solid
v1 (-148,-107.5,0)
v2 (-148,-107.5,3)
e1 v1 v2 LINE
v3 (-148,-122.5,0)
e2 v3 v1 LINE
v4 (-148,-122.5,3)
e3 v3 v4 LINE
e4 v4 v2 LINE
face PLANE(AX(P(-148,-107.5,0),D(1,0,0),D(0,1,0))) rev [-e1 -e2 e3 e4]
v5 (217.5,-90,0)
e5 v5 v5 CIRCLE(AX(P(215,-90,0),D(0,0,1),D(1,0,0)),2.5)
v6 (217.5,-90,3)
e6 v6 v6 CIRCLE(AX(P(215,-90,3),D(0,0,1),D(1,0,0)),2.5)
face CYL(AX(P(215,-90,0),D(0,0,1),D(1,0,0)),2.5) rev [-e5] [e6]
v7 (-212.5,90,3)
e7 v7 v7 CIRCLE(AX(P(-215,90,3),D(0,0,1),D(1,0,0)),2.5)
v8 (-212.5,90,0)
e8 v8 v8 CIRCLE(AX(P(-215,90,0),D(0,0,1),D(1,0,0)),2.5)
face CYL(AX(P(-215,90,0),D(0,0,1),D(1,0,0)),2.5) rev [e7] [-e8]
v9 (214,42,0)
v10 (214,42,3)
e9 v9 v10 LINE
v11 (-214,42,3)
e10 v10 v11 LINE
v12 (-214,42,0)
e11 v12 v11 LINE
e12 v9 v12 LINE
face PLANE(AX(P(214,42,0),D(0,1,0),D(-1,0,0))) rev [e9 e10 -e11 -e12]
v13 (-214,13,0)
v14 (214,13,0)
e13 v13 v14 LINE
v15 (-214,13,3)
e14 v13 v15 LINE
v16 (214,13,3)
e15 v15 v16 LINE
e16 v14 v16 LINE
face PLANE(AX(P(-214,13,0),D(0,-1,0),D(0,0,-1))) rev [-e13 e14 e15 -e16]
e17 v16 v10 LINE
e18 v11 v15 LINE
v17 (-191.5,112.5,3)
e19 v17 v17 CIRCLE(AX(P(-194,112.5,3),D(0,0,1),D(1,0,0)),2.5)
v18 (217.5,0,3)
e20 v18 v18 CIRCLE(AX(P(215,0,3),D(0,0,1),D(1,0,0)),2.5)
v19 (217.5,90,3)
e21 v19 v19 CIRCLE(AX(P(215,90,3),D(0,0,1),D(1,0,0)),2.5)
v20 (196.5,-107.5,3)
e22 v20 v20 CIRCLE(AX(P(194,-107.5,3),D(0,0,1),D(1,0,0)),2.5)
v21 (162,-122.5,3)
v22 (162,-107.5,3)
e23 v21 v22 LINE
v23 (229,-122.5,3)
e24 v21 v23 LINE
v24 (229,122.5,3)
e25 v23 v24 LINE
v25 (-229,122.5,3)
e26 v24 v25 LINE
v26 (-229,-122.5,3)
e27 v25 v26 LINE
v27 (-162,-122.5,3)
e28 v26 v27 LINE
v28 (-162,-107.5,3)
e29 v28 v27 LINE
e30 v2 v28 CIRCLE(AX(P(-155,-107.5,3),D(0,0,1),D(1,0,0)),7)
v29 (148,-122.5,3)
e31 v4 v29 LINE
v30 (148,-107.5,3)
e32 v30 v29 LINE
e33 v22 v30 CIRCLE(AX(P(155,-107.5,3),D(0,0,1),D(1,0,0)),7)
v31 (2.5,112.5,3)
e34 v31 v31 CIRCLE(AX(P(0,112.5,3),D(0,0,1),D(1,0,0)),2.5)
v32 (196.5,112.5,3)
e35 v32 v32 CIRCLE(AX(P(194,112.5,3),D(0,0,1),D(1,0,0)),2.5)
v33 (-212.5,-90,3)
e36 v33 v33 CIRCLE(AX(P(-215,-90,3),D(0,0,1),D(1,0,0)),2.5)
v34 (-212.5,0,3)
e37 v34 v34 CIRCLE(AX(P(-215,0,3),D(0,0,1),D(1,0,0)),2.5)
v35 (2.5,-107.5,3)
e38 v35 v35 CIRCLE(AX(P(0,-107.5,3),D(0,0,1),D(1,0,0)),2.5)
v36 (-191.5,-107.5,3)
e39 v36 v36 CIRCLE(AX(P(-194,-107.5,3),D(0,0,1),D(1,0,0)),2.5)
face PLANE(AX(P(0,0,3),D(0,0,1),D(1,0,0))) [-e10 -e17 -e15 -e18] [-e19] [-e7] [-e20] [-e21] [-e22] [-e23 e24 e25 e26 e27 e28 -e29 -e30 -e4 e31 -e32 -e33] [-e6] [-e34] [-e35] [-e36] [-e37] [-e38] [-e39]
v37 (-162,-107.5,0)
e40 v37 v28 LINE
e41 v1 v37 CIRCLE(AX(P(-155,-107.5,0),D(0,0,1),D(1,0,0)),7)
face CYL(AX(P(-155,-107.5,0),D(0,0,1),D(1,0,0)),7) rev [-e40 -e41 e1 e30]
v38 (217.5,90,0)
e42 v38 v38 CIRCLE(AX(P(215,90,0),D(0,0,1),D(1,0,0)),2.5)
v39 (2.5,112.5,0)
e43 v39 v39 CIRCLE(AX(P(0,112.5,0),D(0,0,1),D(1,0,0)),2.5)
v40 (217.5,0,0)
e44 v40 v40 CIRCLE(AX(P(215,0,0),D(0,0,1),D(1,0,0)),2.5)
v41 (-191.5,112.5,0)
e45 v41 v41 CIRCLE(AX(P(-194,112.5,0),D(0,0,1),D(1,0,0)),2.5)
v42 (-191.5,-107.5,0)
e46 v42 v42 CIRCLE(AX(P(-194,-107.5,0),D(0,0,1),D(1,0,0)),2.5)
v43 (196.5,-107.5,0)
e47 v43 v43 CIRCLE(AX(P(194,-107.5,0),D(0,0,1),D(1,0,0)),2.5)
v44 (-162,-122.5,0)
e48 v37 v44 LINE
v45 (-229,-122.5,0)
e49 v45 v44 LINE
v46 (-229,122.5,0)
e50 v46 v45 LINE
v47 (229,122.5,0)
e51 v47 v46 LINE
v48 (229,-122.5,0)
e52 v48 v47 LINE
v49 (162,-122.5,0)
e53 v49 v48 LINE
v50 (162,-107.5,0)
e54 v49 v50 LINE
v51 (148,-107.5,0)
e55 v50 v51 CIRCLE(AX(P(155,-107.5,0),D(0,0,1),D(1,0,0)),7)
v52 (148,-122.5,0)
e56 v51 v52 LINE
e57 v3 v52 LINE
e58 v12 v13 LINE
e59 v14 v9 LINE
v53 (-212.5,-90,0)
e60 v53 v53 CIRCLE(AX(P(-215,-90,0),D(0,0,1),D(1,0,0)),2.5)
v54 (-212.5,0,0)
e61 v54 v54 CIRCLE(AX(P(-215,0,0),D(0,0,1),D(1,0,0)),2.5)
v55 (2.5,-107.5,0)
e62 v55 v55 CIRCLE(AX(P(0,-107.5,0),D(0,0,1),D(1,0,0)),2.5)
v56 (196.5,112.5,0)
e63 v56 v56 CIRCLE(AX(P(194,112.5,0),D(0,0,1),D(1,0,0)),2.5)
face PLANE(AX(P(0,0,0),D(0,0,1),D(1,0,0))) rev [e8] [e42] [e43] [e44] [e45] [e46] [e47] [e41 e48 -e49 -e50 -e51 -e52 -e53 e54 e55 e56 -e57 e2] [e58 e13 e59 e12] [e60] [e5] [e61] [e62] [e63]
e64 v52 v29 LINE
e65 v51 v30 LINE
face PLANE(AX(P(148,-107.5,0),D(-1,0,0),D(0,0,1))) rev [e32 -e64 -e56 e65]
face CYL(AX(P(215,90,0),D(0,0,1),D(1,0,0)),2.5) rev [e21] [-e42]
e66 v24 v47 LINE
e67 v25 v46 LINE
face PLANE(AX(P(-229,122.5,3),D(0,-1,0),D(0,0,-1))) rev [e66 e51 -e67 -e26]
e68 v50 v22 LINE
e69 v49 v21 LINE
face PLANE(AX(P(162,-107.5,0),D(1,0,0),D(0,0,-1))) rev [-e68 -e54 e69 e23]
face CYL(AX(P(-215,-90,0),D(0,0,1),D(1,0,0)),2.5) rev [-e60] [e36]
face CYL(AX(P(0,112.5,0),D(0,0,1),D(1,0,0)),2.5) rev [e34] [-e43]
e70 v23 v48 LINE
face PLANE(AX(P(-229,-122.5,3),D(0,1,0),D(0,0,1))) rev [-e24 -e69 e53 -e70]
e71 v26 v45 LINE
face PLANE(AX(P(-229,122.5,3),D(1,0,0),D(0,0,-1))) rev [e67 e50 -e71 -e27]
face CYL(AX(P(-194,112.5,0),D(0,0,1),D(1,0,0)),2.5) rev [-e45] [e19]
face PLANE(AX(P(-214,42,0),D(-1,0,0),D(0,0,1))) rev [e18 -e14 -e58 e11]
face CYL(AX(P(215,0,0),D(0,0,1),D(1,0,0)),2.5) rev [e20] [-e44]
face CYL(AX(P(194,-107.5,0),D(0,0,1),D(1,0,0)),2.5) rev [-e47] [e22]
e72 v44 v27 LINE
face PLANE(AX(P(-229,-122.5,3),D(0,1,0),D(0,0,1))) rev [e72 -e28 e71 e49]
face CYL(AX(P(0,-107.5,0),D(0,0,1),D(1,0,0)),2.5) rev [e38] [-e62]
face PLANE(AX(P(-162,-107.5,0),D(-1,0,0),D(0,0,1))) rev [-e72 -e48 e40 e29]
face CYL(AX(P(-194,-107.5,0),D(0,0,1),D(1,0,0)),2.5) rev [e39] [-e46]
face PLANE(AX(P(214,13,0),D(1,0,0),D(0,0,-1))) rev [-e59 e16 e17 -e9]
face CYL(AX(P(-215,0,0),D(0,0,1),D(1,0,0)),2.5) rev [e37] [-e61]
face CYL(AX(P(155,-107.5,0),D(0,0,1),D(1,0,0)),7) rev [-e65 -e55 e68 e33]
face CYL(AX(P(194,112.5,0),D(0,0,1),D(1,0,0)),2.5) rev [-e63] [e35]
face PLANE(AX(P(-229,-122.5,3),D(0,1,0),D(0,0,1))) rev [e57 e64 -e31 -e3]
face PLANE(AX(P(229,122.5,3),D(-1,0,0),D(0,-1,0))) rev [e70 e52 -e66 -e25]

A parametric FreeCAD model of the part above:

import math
import FreeCAD as App
import Part
import Sketcher


def add_polygon(sketch, points):
    """Adds a closed chain of lines whose ends are joined by coincident constraints."""
    first, n = sketch.GeometryCount, len(points)
    for a, b in zip(points, points[1:] + points[:1]):
        sketch.addGeometry(Part.LineSegment(App.Vector(*a, 0), App.Vector(*b, 0)), False)
    for i in range(n):
        sketch.addConstraint(Sketcher.Constraint("Coincident", first + i, 2, first + (i + 1) % n, 1))

doc = App.newDocument("Part")
body = doc.addObject("PartDesign::Body", "Body")

# Sketch on XY plane
sketch1 = body.newObject("Sketcher::SketchObject", "Sketch")
sketch1.AttachmentSupport = (doc.getObject("XY_Plane"), [""])
sketch1.MapMode = "FlatFace"
add_polygon(sketch1, [(-229, 122), (-229, -122), (229, -122), (229, 122)])  # lines 0-3
sketch1.addConstraint([
    Sketcher.Constraint("Vertical", 0),
    Sketcher.Constraint("Horizontal", 1),
    Sketcher.Constraint("Vertical", 2),
    Sketcher.Constraint("Horizontal", 3),
    Sketcher.Constraint("Symmetric", 0, 2, 2, 2, -1, 1),
    Sketcher.Constraint("DistanceX", 1, 1, 1, 2, 458.0),
    Sketcher.Constraint("DistanceY", 0, 2, 0, 1, 245.0),
])
pad1 = body.newObject("PartDesign::Pad", "Pad")
pad1.Profile = sketch1
pad1.Length = 3

# Sketch on XY plane
sketch2 = body.newObject("Sketcher::SketchObject", "Sketch001")
sketch2.AttachmentSupport = (doc.getObject("XY_Plane"), [""])
sketch2.MapMode = "FlatFace"
sketch2.AttachmentOffset = App.Placement(App.Vector(0, 0, 3), App.Rotation())
sketch2.addGeometry([
    Part.LineSegment(App.Vector(-148, -122, 0), App.Vector(-148, -108, 0)),  # 0
    Part.ArcOfCircle(Part.Circle(App.Vector(-155, -108, 0), App.Vector(0, 0, 1), 7), math.radians(0), math.radians(180)),  # 1
    Part.LineSegment(App.Vector(-162, -108, 0), App.Vector(-162, -122, 0)),  # 2
    Part.ArcOfCircle(Part.Circle(App.Vector(-155, -122, 0), App.Vector(0, 0, 1), 7), math.radians(180), math.radians(360)),  # 3
    Part.LineSegment(App.Vector(162, -122, 0), App.Vector(162, -108, 0)),  # 4
    Part.ArcOfCircle(Part.Circle(App.Vector(155, -108, 0), App.Vector(0, 0, 1), 7), math.radians(0), math.radians(180)),  # 5
    Part.LineSegment(App.Vector(148, -108, 0), App.Vector(148, -122, 0)),  # 6
    Part.ArcOfCircle(Part.Circle(App.Vector(155, -122, 0), App.Vector(0, 0, 1), 7), math.radians(180), math.radians(360)),  # 7
], False)
sketch2.addConstraint([
    Sketcher.Constraint("Tangent", 0, 2, 1, 1),
    Sketcher.Constraint("Tangent", 1, 2, 2, 1),
    Sketcher.Constraint("Tangent", 2, 2, 3, 1),
    Sketcher.Constraint("Tangent", 3, 2, 0, 1),
    Sketcher.Constraint("Tangent", 4, 2, 5, 1),
    Sketcher.Constraint("Tangent", 5, 2, 6, 1),
    Sketcher.Constraint("Tangent", 6, 2, 7, 1),
    Sketcher.Constraint("Tangent", 7, 2, 4, 1),
    Sketcher.Constraint("Vertical", 0),
    Sketcher.Constraint("Vertical", 2),
    Sketcher.Constraint("Vertical", 4),
    Sketcher.Constraint("Vertical", 6),
    Sketcher.Constraint("Equal", 3, 5),
    Sketcher.Constraint("Symmetric", 1, 3, 5, 3, -2),
    Sketcher.Constraint("Horizontal", 3, 3, 7, 3),
    Sketcher.Constraint("Radius", 1, 7.0),
    Sketcher.Constraint("DistanceY", 0, 1, 0, 2, 15.0),
    Sketcher.Constraint("DistanceX", 1, 3, -1, 1, 155.0),
    Sketcher.Constraint("DistanceY", 1, 3, -1, 1, 107.5),
])
pocket1 = body.newObject("PartDesign::Pocket", "Pocket")
pocket1.Profile = sketch2
pocket1.Type = "ThroughAll"

# Sketch on XY plane
sketch3 = body.newObject("Sketcher::SketchObject", "Sketch002")
sketch3.AttachmentSupport = (doc.getObject("XY_Plane"), [""])
sketch3.MapMode = "FlatFace"
sketch3.AttachmentOffset = App.Placement(App.Vector(0, 0, 3), App.Rotation())
sketch3.addGeometry([
    Part.Circle(App.Vector(-194, 112.5, 0), App.Vector(0, 0, 1), 2.5),  # 0
    Part.Circle(App.Vector(-194, -107.5, 0), App.Vector(0, 0, 1), 2.5),  # 1
    Part.Circle(App.Vector(194, -107.5, 0), App.Vector(0, 0, 1), 2.5),  # 2
    Part.Circle(App.Vector(194, 112.5, 0), App.Vector(0, 0, 1), 2.5),  # 3
    Part.Circle(App.Vector(-215, 0, 0), App.Vector(0, 0, 1), 2.5),  # 4
    Part.Circle(App.Vector(-215, -90, 0), App.Vector(0, 0, 1), 2.5),  # 5
    Part.Circle(App.Vector(-215, 90, 0), App.Vector(0, 0, 1), 2.5),  # 6
    Part.Circle(App.Vector(215, 0, 0), App.Vector(0, 0, 1), 2.5),  # 7
    Part.Circle(App.Vector(215, -90, 0), App.Vector(0, 0, 1), 2.5),  # 8
    Part.Circle(App.Vector(215, 90, 0), App.Vector(0, 0, 1), 2.5),  # 9
    Part.Circle(App.Vector(0, 112.5, 0), App.Vector(0, 0, 1), 2.5),  # 10
    Part.Circle(App.Vector(0, -107.5, 0), App.Vector(0, 0, 1), 2.5),  # 11
], False)
sketch3.addConstraint([
    Sketcher.Constraint("Equal", 0, 1),
    Sketcher.Constraint("Equal", 1, 2),
    Sketcher.Constraint("Equal", 2, 3),
    Sketcher.Constraint("Equal", 3, 4),
    Sketcher.Constraint("Equal", 4, 5),
    Sketcher.Constraint("Equal", 5, 6),
    Sketcher.Constraint("Equal", 6, 7),
    Sketcher.Constraint("Equal", 7, 8),
    Sketcher.Constraint("Equal", 8, 9),
    Sketcher.Constraint("Equal", 9, 10),
    Sketcher.Constraint("Equal", 10, 11),
    Sketcher.Constraint("Symmetric", 4, 3, 7, 3, -1, 1),
    Sketcher.Constraint("Symmetric", 6, 3, 8, 3, -1, 1),
    Sketcher.Constraint("Symmetric", 5, 3, 9, 3, -1, 1),
    Sketcher.Constraint("Symmetric", 1, 3, 2, 3, -2),
    Sketcher.Constraint("Symmetric", 0, 3, 3, 3, -2),
    Sketcher.Constraint("Symmetric", 5, 3, 8, 3, -2),
    Sketcher.Constraint("PointOnObject", 4, 3, -1),
    Sketcher.Constraint("PointOnObject", 10, 3, -2),
    Sketcher.Constraint("PointOnObject", 11, 3, -2),
    Sketcher.Constraint("Horizontal", 3, 3, 10, 3),
    Sketcher.Constraint("Horizontal", 2, 3, 11, 3),
    Sketcher.Constraint("Vertical", 0, 3, 1, 3),
    Sketcher.Constraint("Vertical", 4, 3, 5, 3),
    Sketcher.Constraint("Diameter", 0, 5.0),
    Sketcher.Constraint("DistanceX", 0, 3, -1, 1, 194.0),
    Sketcher.Constraint("DistanceX", 4, 3, -1, 1, 215.0),
    Sketcher.Constraint("DistanceY", 5, 3, -1, 1, 90.0),
    Sketcher.Constraint("DistanceY", 1, 3, 0, 3, 220.0),
    Sketcher.Constraint("DistanceY", -1, 1, 0, 3, 112.5),
])
pocket2 = body.newObject("PartDesign::Pocket", "Pocket001")
pocket2.Profile = sketch3
pocket2.Type = "ThroughAll"

# Sketch on XY plane
sketch4 = body.newObject("Sketcher::SketchObject", "Sketch003")
sketch4.AttachmentSupport = (doc.getObject("XY_Plane"), [""])
sketch4.MapMode = "FlatFace"
sketch4.AttachmentOffset = App.Placement(App.Vector(0, 0, 3), App.Rotation())
add_polygon(sketch4, [(-214, 42), (-214, 13), (214, 13), (214, 42)])  # lines 0-3
sketch4.addConstraint([
    Sketcher.Constraint("Vertical", 0),
    Sketcher.Constraint("Horizontal", 1),
    Sketcher.Constraint("Vertical", 2),
    Sketcher.Constraint("Horizontal", 3),
    Sketcher.Constraint("DistanceX", 1, 1, 1, 2, 428.0),
    Sketcher.Constraint("DistanceY", 0, 2, 0, 1, 29.0),
    Sketcher.Constraint("DistanceX", 0, 2, -1, 1, 214.0),
    Sketcher.Constraint("DistanceY", -1, 1, 0, 2, 13.0),
])
pocket3 = body.newObject("PartDesign::Pocket", "Pocket002")
pocket3.Profile = sketch4
pocket3.Type = "ThroughAll"

doc.recompute()
